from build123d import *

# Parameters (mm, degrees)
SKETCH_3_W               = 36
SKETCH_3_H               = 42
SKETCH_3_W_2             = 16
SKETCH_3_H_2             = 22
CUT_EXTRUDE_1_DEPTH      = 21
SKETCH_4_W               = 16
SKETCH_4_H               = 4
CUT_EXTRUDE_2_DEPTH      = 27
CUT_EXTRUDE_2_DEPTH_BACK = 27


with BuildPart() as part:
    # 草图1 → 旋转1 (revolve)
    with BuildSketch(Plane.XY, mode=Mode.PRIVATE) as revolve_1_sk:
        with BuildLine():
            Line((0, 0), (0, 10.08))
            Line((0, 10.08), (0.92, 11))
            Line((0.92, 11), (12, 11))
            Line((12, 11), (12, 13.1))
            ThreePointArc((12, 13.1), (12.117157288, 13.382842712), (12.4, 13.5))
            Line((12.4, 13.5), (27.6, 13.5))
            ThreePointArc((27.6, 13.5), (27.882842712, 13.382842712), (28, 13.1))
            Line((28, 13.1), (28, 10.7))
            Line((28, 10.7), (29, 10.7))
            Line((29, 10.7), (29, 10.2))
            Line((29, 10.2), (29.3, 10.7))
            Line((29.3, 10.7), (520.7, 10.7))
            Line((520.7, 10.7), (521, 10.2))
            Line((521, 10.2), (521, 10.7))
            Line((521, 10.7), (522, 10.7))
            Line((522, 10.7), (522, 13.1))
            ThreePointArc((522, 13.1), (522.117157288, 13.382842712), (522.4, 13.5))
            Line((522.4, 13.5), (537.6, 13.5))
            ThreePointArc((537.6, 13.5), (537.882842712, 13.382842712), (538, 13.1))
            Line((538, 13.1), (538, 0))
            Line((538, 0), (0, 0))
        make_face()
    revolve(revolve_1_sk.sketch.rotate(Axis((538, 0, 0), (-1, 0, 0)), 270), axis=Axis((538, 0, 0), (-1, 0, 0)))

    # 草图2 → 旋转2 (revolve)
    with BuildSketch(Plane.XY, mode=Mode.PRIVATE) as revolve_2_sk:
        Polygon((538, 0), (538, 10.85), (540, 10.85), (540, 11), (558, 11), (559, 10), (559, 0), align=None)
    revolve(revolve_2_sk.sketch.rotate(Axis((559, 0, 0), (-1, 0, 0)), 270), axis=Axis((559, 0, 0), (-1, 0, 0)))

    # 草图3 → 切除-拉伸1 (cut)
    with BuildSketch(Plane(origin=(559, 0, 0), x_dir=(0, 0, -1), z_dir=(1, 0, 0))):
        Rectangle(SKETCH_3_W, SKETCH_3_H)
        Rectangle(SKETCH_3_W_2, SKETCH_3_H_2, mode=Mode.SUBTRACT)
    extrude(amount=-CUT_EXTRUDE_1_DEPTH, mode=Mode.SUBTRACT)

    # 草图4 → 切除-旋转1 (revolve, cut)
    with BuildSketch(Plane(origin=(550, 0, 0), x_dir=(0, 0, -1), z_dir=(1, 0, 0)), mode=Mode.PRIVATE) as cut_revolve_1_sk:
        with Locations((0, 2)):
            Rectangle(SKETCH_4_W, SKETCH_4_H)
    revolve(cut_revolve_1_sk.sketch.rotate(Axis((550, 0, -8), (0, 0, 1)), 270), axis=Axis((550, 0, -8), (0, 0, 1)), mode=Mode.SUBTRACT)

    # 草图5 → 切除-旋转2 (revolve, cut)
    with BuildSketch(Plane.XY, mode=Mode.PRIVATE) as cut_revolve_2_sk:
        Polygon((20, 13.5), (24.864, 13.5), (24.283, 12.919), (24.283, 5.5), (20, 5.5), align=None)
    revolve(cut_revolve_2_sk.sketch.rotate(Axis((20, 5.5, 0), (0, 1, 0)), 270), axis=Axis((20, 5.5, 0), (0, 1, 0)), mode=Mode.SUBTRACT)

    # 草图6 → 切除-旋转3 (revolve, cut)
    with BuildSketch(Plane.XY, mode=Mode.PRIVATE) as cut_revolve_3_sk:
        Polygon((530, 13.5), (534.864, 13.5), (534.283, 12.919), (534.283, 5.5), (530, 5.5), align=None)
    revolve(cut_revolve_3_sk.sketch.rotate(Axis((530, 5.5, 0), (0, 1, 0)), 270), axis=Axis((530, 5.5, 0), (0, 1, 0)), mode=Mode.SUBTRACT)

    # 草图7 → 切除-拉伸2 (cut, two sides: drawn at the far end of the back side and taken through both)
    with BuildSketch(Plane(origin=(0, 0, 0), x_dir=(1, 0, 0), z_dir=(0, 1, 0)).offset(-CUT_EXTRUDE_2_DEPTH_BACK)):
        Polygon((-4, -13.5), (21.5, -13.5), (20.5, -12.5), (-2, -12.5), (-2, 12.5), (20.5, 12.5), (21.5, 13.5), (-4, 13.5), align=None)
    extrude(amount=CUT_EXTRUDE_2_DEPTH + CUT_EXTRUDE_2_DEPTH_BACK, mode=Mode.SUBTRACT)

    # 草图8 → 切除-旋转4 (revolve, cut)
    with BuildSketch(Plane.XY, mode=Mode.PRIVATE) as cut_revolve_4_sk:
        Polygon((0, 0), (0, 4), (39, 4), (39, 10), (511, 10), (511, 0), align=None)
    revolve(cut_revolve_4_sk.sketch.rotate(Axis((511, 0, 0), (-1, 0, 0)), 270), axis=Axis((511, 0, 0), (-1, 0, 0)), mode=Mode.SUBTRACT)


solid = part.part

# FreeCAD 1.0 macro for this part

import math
import FreeCAD as App
import Part
import Sketcher
Q = App.Units.Quantity


def add_polygon(sketch, points):
    """Adds a closed chain of lines whose ends are joined by coincident constraints."""
    first, n = sketch.GeometryCount, len(points)
    for a, b in zip(points, points[1:] + points[:1]):
        sketch.addGeometry(Part.LineSegment(App.Vector(*a, 0), App.Vector(*b, 0)), False)
    for i in range(n):
        sketch.addConstraint(Sketcher.Constraint("Coincident", first + i, 2, first + (i + 1) % n, 1))

doc = App.newDocument("Part")
body = doc.addObject("PartDesign::Body", "Body")

sketch1 = body.newObject("Sketcher::SketchObject", "Sketch")
sketch1.AttachmentSupport = (doc.getObject("XY_Plane"), [""])
sketch1.MapMode = "FlatFace"
sketch1.addGeometry([
    Part.LineSegment(App.Vector(0, 10.08, 0), App.Vector(0, 0, 0)),
    Part.LineSegment(App.Vector(0, 0, 0), App.Vector(538, 0, 0)),
    Part.LineSegment(App.Vector(538, 0, 0), App.Vector(538, 13.1, 0)),
    Part.ArcOfCircle(Part.Circle(App.Vector(537.6, 13.1, 0), App.Vector(0, 0, 1), 0.4), math.radians(0), math.radians(90)),
    Part.LineSegment(App.Vector(537.6, 13.5, 0), App.Vector(522.4, 13.5, 0)),
    Part.ArcOfCircle(Part.Circle(App.Vector(522.4, 13.1, 0), App.Vector(0, 0, 1), 0.4), math.radians(90), math.radians(180)),
    Part.LineSegment(App.Vector(522, 13.1, 0), App.Vector(522, 10.7, 0)),
    Part.LineSegment(App.Vector(522, 10.7, 0), App.Vector(521, 10.7, 0)),
    Part.LineSegment(App.Vector(521, 10.7, 0), App.Vector(521, 10.2, 0)),
    Part.LineSegment(App.Vector(521, 10.2, 0), App.Vector(520.7, 10.7, 0)),
    Part.LineSegment(App.Vector(520.7, 10.7, 0), App.Vector(29.3, 10.7, 0)),
    Part.LineSegment(App.Vector(29.3, 10.7, 0), App.Vector(29, 10.2, 0)),
    Part.LineSegment(App.Vector(29, 10.2, 0), App.Vector(29, 10.7, 0)),
    Part.LineSegment(App.Vector(29, 10.7, 0), App.Vector(28, 10.7, 0)),
    Part.LineSegment(App.Vector(28, 10.7, 0), App.Vector(28, 13.1, 0)),
    Part.ArcOfCircle(Part.Circle(App.Vector(27.6, 13.1, 0), App.Vector(0, 0, 1), 0.4), math.radians(0), math.radians(90)),
    Part.LineSegment(App.Vector(27.6, 13.5, 0), App.Vector(12.4, 13.5, 0)),
    Part.ArcOfCircle(Part.Circle(App.Vector(12.4, 13.1, 0), App.Vector(0, 0, 1), 0.4), math.radians(90), math.radians(180)),
    Part.LineSegment(App.Vector(12, 13.1, 0), App.Vector(12, 11, 0)),
    Part.LineSegment(App.Vector(12, 11, 0), App.Vector(0.92, 11, 0)),
    Part.LineSegment(App.Vector(0.92, 11, 0), App.Vector(0, 10.08, 0)),
], False)
sketch1.addConstraint([
    Sketcher.Constraint("Coincident", 0, 2, 1, 1),
    Sketcher.Constraint("Coincident", 1, 2, 2, 1),
    Sketcher.Constraint("Tangent", 2, 2, 3, 1),
    Sketcher.Constraint("Tangent", 3, 2, 4, 1),
    Sketcher.Constraint("Tangent", 4, 2, 5, 1),
    Sketcher.Constraint("Tangent", 5, 2, 6, 1),
    Sketcher.Constraint("Coincident", 6, 2, 7, 1),
    Sketcher.Constraint("Coincident", 7, 2, 8, 1),
    Sketcher.Constraint("Coincident", 8, 2, 9, 1),
    Sketcher.Constraint("Coincident", 9, 2, 10, 1),
    Sketcher.Constraint("Coincident", 10, 2, 11, 1),
    Sketcher.Constraint("Coincident", 11, 2, 12, 1),
    Sketcher.Constraint("Coincident", 12, 2, 13, 1),
    Sketcher.Constraint("Coincident", 13, 2, 14, 1),
    Sketcher.Constraint("Tangent", 14, 2, 15, 1),
    Sketcher.Constraint("Tangent", 15, 2, 16, 1),
    Sketcher.Constraint("Tangent", 16, 2, 17, 1),
    Sketcher.Constraint("Tangent", 17, 2, 18, 1),
    Sketcher.Constraint("Coincident", 18, 2, 19, 1),
    Sketcher.Constraint("Coincident", 19, 2, 20, 1),
    Sketcher.Constraint("Coincident", 20, 2, 0, 1),
    Sketcher.Constraint("Vertical", 0),
    Sketcher.Constraint("Horizontal", 1),
    Sketcher.Constraint("Vertical", 2),
    Sketcher.Constraint("Horizontal", 4),
    Sketcher.Constraint("Vertical", 6),
    Sketcher.Constraint("Horizontal", 7),
    Sketcher.Constraint("Vertical", 8),
    Sketcher.Constraint("Horizontal", 10),
    Sketcher.Constraint("Vertical", 12),
    Sketcher.Constraint("Horizontal", 13),
    Sketcher.Constraint("Vertical", 14),
    Sketcher.Constraint("Horizontal", 16),
    Sketcher.Constraint("Vertical", 18),
    Sketcher.Constraint("Horizontal", 19),
    Sketcher.Constraint("Coincident", 0, 2, -1, 1),
    Sketcher.Constraint("Equal", 3, 5),
    Sketcher.Constraint("Equal", 5, 15),
    Sketcher.Constraint("Equal", 15, 17),
    Sketcher.Constraint("Horizontal", 5, 3, 15, 3),
    Sketcher.Constraint("Horizontal", 7, 2, 9, 2),
    Sketcher.Constraint("Horizontal", 8, 2, 11, 2),
    Sketcher.Constraint("Horizontal", 10, 2, 12, 2),
    Sketcher.Constraint("Equal", 7, 13),
    Sketcher.Constraint("Equal", 4, 16),
    Sketcher.Constraint("Equal", 9, 11),
    Sketcher.Constraint("Radius", 3, Q("0.4 mm")),
    Sketcher.Constraint("DistanceX", 1, 1, 1, 2, Q("538 mm")),
    Sketcher.Constraint("DistanceX", 7, 2, 7, 1, Q("1 mm")),
    Sketcher.Constraint("Angle", 20, Q("-135 deg")),
    Sketcher.Constraint("DistanceX", 4, 2, 4, 1, Q("15.2 mm")),
    Sketcher.Constraint("DistanceX", 10, 2, 10, 1, Q("491.4 mm")),
    Sketcher.Constraint("DistanceY", 2, 1, 2, 2, Q("13.1 mm")),
    Sketcher.Constraint("DistanceY", 6, 2, 6, 1, Q("2.4 mm")),
    Sketcher.Constraint("DistanceY", 8, 2, 8, 1, Q("0.5 mm")),
    Sketcher.Constraint("DistanceY", 18, 2, 18, 1, Q("2.1 mm")),
    Sketcher.Constraint("DistanceX", -1, 1, 11, 2, Q("29 mm")),
    Sketcher.Constraint("DistanceX", 19, 2, 19, 1, Q("11.08 mm")),
])
revolution = body.newObject("PartDesign::Revolution", "Revolution")
revolution.Profile = sketch1
revolution.ReferenceAxis = (sketch1, ["H_Axis"])
revolution.Angle = 360

sketch2 = body.newObject("Sketcher::SketchObject", "Sketch001")
sketch2.AttachmentSupport = (doc.getObject("XY_Plane"), [""])
sketch2.MapMode = "FlatFace"
add_polygon(sketch2, [(538, 10.85), (538, 0), (559, 0), (559, 10), (558, 11), (540, 11), (540, 10.85)])
sketch2.addConstraint([
    Sketcher.Constraint("Vertical", 0),
    Sketcher.Constraint("Horizontal", 1),
    Sketcher.Constraint("Vertical", 2),
    Sketcher.Constraint("Horizontal", 4),
    Sketcher.Constraint("Vertical", 5),
    Sketcher.Constraint("Horizontal", 6),
    Sketcher.Constraint("PointOnObject", 0, 2, -1),
    Sketcher.Constraint("DistanceX", 1, 1, 1, 2, Q("21 mm")),
    Sketcher.Constraint("DistanceX", 4, 2, 4, 1, Q("18 mm")),
    Sketcher.Constraint("DistanceX", 6, 2, 6, 1, Q("2 mm")),
    Sketcher.Constraint("DistanceY", 2, 1, 2, 2, Q("10 mm")),
    Sketcher.Constraint("Angle", 3, Q("135 deg")),
    Sketcher.Constraint("DistanceX", -1, 1, 0, 2, Q("538 mm")),
    Sketcher.Constraint("DistanceY", 0, 2, 0, 1, Q("10.85 mm")),
])
revolution2 = body.newObject("PartDesign::Revolution", "Revolution001")
revolution2.Profile = sketch2
revolution2.ReferenceAxis = (sketch2, ["H_Axis"])
revolution2.Angle = 360

sketch3 = body.newObject("Sketcher::SketchObject", "Sketch002")
sketch3.AttachmentSupport = (doc.getObject("YZ_Plane"), [""])
sketch3.MapMode = "FlatFace"
sketch3.AttachmentOffset = App.Placement(App.Vector(0, 0, 559), App.Rotation())
add_polygon(sketch3, [(21, 18), (-21, 18), (-21, -18), (21, -18)])
add_polygon(sketch3, [(-11, -8), (-11, 8), (11, 8), (11, -8)])
sketch3.addConstraint([
    Sketcher.Constraint("Horizontal", 0),
    Sketcher.Constraint("Vertical", 1),
    Sketcher.Constraint("Horizontal", 2),
    Sketcher.Constraint("Vertical", 3),
    Sketcher.Constraint("Vertical", 4),
    Sketcher.Constraint("Horizontal", 5),
    Sketcher.Constraint("Vertical", 6),
    Sketcher.Constraint("Horizontal", 7),
    Sketcher.Constraint("Symmetric", 0, 2, 2, 2, -1, 1),
    Sketcher.Constraint("Symmetric", 4, 2, 6, 2, -1, 1),
    Sketcher.Constraint("DistanceX", 0, 2, 0, 1, Q("42 mm")),
    Sketcher.Constraint("DistanceX", 5, 1, 5, 2, Q("22 mm")),
    Sketcher.Constraint("DistanceY", 1, 2, 1, 1, Q("36 mm")),
    Sketcher.Constraint("DistanceY", 4, 1, 4, 2, Q("16 mm")),
])
pocket1 = body.newObject("PartDesign::Pocket", "Pocket")
pocket1.Profile = sketch3
pocket1.Length = 21

sketch4 = body.newObject("Sketcher::SketchObject", "Sketch003")
sketch4.AttachmentSupport = (doc.getObject("YZ_Plane"), [""])
sketch4.MapMode = "FlatFace"
sketch4.AttachmentOffset = App.Placement(App.Vector(0, 0, 550), App.Rotation())
add_polygon(sketch4, [(4, 8), (0, 8), (0, -8), (4, -8)])
sketch4.addConstraint([
    Sketcher.Constraint("Horizontal", 0),
    Sketcher.Constraint("Vertical", 1),
    Sketcher.Constraint("Horizontal", 2),
    Sketcher.Constraint("Vertical", 3),
    Sketcher.Constraint("Symmetric", 0, 2, 1, 2, -1, 1),
    Sketcher.Constraint("DistanceX", 0, 2, 0, 1, Q("4 mm")),
    Sketcher.Constraint("DistanceY", 1, 2, 1, 1, Q("16 mm")),
])
groove = body.newObject("PartDesign::Groove", "Groove")
groove.Profile = sketch4
groove.ReferenceAxis = (sketch4, ["V_Axis"])
groove.Angle = 360

sketch5 = body.newObject("Sketcher::SketchObject", "Sketch004")
sketch5.AttachmentSupport = (doc.getObject("XY_Plane"), [""])
sketch5.MapMode = "FlatFace"
add_polygon(sketch5, [(24.9, 13.5), (20, 13.5), (20, 5.5), (24.3, 5.5), (24.3, 12.9)])
sketch5.addGeometry(Part.LineSegment(App.Vector(20, 5.5, 0), App.Vector(20, 13.5, 0)), True)
sketch5.addConstraint([
    Sketcher.Constraint("Horizontal", 0),
    Sketcher.Constraint("Vertical", 1),
    Sketcher.Constraint("Horizontal", 2),
    Sketcher.Constraint("Vertical", 3),
    Sketcher.Constraint("Vertical", 5),
    Sketcher.Constraint("Coincident", 5, 1, 1, 2),
    Sketcher.Constraint("Horizontal", 4, 2, 5, 2),
    Sketcher.Constraint("DistanceY", 1, 2, 1, 1, Q("8 mm")),
    Sketcher.Constraint("Angle", 4, Q("45 deg")),
    Sketcher.Constraint("DistanceX", -1, 1, 0, 2, Q("20 mm")),
    Sketcher.Constraint("DistanceY", -1, 1, 0, 2, Q("13.5 mm")),
    Sketcher.Constraint("DistanceX", 0, 2, 0, 1, Q("4.864 mm")),
    Sketcher.Constraint("DistanceX", 2, 1, 2, 2, Q("4.283 mm")),
])
groove2 = body.newObject("PartDesign::Groove", "Groove001")
groove2.Profile = sketch5
groove2.ReferenceAxis = (sketch5, ["Axis0"])
groove2.Angle = 360

sketch6 = body.newObject("Sketcher::SketchObject", "Sketch005")
sketch6.AttachmentSupport = (doc.getObject("XY_Plane"), [""])
sketch6.MapMode = "FlatFace"
add_polygon(sketch6, [(534.9, 13.5), (530, 13.5), (530, 5.5), (534.3, 5.5), (534.3, 12.9)])
sketch6.addGeometry(Part.LineSegment(App.Vector(530, 5.5, 0), App.Vector(530, 13.5, 0)), True)
sketch6.addConstraint([
    Sketcher.Constraint("Horizontal", 0),
    Sketcher.Constraint("Vertical", 1),
    Sketcher.Constraint("Horizontal", 2),
    Sketcher.Constraint("Vertical", 3),
    Sketcher.Constraint("Vertical", 5),
    Sketcher.Constraint("Coincident", 5, 1, 1, 2),
    Sketcher.Constraint("Horizontal", 4, 2, 5, 2),
    Sketcher.Constraint("DistanceY", 1, 2, 1, 1, Q("8 mm")),
    Sketcher.Constraint("Angle", 4, Q("45 deg")),
    Sketcher.Constraint("DistanceX", -1, 1, 0, 2, Q("530 mm")),
    Sketcher.Constraint("DistanceY", -1, 1, 0, 2, Q("13.5 mm")),
    Sketcher.Constraint("DistanceX", 0, 2, 0, 1, Q("4.864 mm")),
    Sketcher.Constraint("DistanceX", 2, 1, 2, 2, Q("4.283 mm")),
])
groove3 = body.newObject("PartDesign::Groove", "Groove002")
groove3.Profile = sketch6
groove3.ReferenceAxis = (sketch6, ["Axis0"])
groove3.Angle = 360

sketch7 = body.newObject("Sketcher::SketchObject", "Sketch006")
sketch7.AttachmentSupport = (doc.getObject("XZ_Plane"), [""])
sketch7.MapMode = "FlatFace"
add_polygon(sketch7, [(-4, 13.5), (21.5, 13.5), (20.5, 12.5), (-2, 12.5), (-2, -12.5), (20.5, -12.5), (21.5, -13.5), (-4, -13.5)])
sketch7.addConstraint([
    Sketcher.Constraint("Horizontal", 0),
    Sketcher.Constraint("Horizontal", 2),
    Sketcher.Constraint("Vertical", 3),
    Sketcher.Constraint("Horizontal", 4),
    Sketcher.Constraint("Horizontal", 6),
    Sketcher.Constraint("Vertical", 7),
    Sketcher.Constraint("Symmetric", 1, 2, 4, 2, -1),
    Sketcher.Constraint("Symmetric", 0, 2, 5, 2, -1),
    Sketcher.Constraint("Perpendicular", 1, 5),
    Sketcher.Constraint("DistanceY", 3, 2, 3, 1, Q("25 mm")),
    Sketcher.Constraint("DistanceY", 7, 1, 7, 2, Q("27 mm")),
    Sketcher.Constraint("DistanceX", 0, 1, 0, 2, Q("25.5 mm")),
    Sketcher.Constraint("DistanceX", 2, 2, 2, 1, Q("22.5 mm")),
    Sketcher.Constraint("DistanceX", 2, 2, -1, 1, Q("2 mm")),
])
pocket2 = body.newObject("PartDesign::Pocket", "Pocket001")
pocket2.Profile = sketch7
pocket2.Type = "ThroughAll"
pocket2.Midplane = True

sketch8 = body.newObject("Sketcher::SketchObject", "Sketch007")
sketch8.AttachmentSupport = (doc.getObject("XY_Plane"), [""])
sketch8.MapMode = "FlatFace"
add_polygon(sketch8, [(0, 4), (0, 0), (511, 0), (511, 10), (39, 10), (39, 4)])
sketch8.addConstraint([
    Sketcher.Constraint("Vertical", 0),
    Sketcher.Constraint("Horizontal", 1),
    Sketcher.Constraint("Vertical", 2),
    Sketcher.Constraint("Horizontal", 3),
    Sketcher.Constraint("Vertical", 4),
    Sketcher.Constraint("Horizontal", 5),
    Sketcher.Constraint("Coincident", 0, 2, -1, 1),
    Sketcher.Constraint("DistanceX", 1, 1, 1, 2, Q("511 mm")),
    Sketcher.Constraint("DistanceX", 3, 2, 3, 1, Q("472 mm")),
    Sketcher.Constraint("DistanceY", 0, 2, 0, 1, Q("4 mm")),
    Sketcher.Constraint("DistanceY", 2, 1, 2, 2, Q("10 mm")),
])
groove4 = body.newObject("PartDesign::Groove", "Groove003")
groove4.Profile = sketch8
groove4.ReferenceAxis = (sketch8, ["H_Axis"])
groove4.Angle = 360

doc.recompute()
